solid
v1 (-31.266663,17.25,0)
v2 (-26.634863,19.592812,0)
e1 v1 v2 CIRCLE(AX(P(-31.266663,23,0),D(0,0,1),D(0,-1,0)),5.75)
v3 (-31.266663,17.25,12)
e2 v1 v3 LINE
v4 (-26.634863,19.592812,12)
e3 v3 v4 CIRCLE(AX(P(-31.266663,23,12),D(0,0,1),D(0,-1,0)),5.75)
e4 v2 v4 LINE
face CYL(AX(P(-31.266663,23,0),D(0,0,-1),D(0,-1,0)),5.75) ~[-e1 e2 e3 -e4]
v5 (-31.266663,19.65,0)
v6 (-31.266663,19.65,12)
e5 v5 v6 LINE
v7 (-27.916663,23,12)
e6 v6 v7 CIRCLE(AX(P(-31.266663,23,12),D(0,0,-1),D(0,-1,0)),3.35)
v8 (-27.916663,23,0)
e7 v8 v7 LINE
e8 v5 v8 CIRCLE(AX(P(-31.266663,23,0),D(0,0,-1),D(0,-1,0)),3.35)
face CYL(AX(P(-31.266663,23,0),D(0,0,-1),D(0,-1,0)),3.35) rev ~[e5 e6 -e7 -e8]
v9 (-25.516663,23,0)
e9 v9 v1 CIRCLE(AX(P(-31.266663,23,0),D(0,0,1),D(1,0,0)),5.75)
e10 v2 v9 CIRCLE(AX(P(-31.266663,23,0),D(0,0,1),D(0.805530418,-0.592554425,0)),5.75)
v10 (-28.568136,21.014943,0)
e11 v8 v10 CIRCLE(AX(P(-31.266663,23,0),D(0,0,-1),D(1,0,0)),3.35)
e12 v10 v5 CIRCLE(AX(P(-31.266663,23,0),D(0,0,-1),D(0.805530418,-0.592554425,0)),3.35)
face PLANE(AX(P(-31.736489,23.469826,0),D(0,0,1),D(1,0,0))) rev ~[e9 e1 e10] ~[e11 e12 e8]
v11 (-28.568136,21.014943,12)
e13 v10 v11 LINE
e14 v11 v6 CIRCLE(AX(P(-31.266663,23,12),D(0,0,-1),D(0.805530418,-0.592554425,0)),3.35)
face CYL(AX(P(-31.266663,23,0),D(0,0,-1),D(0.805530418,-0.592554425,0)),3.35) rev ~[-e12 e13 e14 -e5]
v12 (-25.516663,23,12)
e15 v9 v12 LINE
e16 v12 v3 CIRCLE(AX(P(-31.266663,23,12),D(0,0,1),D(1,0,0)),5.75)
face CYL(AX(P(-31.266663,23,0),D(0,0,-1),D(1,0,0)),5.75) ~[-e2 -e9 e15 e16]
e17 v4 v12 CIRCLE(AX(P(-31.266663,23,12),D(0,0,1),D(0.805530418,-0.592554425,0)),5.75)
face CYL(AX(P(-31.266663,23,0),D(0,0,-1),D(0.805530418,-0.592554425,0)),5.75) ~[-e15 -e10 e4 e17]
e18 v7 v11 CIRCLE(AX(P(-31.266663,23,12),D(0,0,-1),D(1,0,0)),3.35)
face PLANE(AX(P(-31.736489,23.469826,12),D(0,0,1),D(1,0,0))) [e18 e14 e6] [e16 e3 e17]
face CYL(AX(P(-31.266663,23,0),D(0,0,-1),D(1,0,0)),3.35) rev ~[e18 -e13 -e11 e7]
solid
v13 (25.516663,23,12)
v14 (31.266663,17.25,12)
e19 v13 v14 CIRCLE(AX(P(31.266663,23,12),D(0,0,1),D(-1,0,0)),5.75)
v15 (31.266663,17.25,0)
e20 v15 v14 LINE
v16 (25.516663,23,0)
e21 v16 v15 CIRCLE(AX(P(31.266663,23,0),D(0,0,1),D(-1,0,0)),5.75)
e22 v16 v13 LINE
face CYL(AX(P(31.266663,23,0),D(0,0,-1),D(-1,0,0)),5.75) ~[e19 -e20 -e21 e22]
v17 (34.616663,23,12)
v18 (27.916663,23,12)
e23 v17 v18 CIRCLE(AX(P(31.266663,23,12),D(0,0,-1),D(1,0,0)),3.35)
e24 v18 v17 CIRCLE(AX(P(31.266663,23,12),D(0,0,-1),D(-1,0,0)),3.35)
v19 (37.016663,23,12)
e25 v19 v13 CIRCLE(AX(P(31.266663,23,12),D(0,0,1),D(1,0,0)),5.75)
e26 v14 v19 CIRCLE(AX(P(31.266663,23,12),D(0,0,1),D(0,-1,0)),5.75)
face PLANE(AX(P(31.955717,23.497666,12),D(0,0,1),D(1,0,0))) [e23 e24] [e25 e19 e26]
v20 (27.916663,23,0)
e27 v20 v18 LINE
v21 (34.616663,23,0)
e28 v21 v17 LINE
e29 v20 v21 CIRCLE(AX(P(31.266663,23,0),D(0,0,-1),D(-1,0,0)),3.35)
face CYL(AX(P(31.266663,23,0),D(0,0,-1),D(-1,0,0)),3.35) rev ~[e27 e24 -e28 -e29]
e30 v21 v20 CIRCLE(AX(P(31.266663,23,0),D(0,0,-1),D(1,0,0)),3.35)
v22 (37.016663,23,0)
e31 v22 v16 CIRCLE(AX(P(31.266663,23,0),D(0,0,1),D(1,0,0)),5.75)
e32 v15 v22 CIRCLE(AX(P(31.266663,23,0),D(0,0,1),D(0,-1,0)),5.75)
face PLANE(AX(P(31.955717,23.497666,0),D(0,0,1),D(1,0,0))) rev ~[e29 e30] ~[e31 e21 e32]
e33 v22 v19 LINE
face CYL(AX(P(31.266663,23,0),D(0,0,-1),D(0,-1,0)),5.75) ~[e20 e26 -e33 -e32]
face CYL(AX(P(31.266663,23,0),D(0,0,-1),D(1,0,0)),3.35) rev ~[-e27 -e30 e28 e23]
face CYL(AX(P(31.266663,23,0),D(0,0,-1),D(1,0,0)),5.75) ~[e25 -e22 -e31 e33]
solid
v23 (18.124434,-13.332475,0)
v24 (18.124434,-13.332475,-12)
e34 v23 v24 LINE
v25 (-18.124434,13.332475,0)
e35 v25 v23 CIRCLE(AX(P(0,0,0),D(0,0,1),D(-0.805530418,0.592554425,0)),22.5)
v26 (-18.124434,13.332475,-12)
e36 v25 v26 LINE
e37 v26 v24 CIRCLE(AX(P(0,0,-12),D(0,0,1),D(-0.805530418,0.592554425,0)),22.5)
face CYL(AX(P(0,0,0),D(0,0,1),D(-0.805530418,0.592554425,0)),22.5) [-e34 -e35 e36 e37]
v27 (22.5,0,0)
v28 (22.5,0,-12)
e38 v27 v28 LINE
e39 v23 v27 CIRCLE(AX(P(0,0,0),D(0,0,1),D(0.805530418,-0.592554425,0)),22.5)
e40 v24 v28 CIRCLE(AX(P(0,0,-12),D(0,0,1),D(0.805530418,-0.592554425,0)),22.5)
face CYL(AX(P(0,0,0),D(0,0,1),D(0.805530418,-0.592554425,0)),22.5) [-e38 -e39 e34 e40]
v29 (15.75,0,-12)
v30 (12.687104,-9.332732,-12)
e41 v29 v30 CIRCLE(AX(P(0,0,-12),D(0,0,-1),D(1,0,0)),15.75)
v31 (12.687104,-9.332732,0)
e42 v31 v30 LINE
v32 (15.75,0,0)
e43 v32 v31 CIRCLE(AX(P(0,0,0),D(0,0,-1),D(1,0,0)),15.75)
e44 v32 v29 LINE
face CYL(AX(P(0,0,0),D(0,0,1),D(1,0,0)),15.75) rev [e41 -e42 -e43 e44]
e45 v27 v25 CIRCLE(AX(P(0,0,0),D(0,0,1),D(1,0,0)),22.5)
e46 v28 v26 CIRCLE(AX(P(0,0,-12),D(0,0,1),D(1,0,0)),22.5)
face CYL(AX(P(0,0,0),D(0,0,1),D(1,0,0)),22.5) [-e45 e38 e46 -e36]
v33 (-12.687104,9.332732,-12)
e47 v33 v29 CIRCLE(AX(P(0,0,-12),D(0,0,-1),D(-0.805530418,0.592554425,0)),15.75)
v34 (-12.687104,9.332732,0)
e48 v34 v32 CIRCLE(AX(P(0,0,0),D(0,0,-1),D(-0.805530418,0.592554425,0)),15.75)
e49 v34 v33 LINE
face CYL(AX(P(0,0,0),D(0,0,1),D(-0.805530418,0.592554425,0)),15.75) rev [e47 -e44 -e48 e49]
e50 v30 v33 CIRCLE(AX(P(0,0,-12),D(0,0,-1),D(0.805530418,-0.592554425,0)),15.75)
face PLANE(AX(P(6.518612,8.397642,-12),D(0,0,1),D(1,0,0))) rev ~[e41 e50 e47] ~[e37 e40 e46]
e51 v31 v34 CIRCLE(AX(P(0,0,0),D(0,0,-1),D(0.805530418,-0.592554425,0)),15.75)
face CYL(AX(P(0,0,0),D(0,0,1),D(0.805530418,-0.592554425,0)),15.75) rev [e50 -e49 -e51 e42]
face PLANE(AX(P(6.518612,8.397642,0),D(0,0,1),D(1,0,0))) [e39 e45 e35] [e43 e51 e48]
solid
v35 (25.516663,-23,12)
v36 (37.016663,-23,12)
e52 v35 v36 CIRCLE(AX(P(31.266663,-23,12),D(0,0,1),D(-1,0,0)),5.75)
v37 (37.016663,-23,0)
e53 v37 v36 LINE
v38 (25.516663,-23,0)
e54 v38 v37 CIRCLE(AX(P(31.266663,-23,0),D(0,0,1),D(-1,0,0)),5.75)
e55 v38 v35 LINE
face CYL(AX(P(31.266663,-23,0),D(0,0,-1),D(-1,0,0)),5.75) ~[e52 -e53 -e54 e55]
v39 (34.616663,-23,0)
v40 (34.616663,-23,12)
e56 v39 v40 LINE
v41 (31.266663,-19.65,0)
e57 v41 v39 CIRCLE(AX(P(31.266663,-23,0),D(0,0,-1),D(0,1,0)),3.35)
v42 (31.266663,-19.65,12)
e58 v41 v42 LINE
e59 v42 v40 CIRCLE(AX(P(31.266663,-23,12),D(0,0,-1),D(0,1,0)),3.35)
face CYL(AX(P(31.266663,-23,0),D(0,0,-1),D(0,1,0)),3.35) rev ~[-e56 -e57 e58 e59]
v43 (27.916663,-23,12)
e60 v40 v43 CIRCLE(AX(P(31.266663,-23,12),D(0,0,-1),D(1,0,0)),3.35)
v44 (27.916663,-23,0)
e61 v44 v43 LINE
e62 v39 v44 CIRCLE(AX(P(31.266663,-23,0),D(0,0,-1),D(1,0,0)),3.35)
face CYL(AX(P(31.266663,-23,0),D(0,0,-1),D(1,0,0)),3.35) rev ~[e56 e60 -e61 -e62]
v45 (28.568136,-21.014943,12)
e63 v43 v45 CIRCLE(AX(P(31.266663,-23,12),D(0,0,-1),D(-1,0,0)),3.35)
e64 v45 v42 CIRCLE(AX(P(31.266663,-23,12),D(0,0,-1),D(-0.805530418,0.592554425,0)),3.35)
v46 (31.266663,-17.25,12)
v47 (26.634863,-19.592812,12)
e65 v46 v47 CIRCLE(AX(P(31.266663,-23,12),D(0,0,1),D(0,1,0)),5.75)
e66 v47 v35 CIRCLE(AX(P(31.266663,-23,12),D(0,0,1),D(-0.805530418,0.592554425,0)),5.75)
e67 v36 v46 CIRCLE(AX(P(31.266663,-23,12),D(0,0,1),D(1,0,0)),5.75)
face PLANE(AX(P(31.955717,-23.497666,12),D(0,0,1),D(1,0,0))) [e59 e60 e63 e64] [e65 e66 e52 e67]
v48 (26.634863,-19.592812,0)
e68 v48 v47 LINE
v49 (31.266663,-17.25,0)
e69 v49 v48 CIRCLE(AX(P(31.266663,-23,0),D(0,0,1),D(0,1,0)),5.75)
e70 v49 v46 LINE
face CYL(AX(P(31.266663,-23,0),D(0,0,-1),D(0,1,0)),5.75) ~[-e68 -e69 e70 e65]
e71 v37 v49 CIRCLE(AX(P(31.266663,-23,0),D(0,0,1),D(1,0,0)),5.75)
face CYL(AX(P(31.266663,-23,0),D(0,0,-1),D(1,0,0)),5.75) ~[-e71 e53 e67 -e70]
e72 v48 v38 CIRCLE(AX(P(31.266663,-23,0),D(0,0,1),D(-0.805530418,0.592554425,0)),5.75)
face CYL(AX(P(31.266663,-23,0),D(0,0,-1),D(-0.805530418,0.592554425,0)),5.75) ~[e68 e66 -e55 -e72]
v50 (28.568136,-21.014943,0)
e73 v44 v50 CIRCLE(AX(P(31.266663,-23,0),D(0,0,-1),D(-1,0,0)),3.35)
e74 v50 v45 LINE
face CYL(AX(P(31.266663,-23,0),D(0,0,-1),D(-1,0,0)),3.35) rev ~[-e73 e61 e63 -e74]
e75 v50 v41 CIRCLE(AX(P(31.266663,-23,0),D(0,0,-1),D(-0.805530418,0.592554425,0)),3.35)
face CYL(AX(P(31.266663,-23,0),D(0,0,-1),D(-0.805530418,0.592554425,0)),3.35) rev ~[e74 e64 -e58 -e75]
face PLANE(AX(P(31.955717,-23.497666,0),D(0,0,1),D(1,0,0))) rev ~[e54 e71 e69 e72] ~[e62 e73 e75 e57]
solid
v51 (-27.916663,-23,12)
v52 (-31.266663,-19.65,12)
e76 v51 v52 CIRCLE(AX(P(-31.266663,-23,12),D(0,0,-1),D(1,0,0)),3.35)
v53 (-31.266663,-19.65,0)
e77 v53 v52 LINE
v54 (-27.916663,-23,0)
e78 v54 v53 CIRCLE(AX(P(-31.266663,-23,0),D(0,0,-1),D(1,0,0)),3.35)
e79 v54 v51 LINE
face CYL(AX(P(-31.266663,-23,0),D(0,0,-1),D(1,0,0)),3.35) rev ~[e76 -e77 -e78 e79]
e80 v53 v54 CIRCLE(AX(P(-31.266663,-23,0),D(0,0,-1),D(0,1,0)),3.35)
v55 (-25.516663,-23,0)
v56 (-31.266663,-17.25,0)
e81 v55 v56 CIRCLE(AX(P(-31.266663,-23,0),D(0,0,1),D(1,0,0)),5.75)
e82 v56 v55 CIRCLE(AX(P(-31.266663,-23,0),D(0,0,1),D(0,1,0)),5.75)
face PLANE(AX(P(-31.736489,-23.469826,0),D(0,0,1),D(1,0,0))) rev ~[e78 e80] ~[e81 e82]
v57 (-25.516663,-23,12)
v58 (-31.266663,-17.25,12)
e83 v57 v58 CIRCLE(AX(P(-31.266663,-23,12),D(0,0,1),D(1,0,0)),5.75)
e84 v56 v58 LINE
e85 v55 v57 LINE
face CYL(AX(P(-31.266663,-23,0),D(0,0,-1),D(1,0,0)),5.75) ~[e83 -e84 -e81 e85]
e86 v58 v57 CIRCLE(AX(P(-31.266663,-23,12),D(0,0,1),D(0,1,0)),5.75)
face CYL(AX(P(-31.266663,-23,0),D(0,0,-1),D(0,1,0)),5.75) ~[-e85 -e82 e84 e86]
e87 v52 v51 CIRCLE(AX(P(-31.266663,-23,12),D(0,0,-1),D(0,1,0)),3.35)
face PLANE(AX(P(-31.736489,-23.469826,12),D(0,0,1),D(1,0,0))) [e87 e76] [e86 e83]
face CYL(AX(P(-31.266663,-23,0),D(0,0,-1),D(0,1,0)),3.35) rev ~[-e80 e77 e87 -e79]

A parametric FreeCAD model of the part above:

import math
import FreeCAD as App
import Part
import Sketcher

V = App.Vector

doc = App.newDocument("Part")
body = doc.addObject("PartDesign::Body", "Body")

# Sketch on XY plane
sketch1 = doc.addObject("Sketcher::SketchObject", "Sketch")
body.addObject(sketch1)
sketch1.AttachmentSupport = (doc.XY_Plane, [""])
sketch1.MapMode = "FlatFace"
sketch1.addGeometry(Part.ArcOfCircle(Part.Circle(V(-31.3, -23, 0), V(0, 0, 1), 5.8), math.radians(90), math.radians(360)), False)
sketch1.addGeometry(Part.ArcOfCircle(Part.Circle(V(-31.3, -23, 0), V(0, 0, 1), 5.8), math.radians(0), math.radians(90)), False)
sketch1.addGeometry(Part.ArcOfCircle(Part.Circle(V(-31.3, -23, 0), V(0, 0, 1), 3.4), math.radians(90), math.radians(360)), False)
sketch1.addGeometry(Part.ArcOfCircle(Part.Circle(V(-31.3, -23, 0), V(0, 0, 1), 3.4), math.radians(0), math.radians(90)), False)
sketch1.addConstraint(Sketcher.Constraint("Tangent", 0, 1, 1, 2))
sketch1.addConstraint(Sketcher.Constraint("Coincident", 1, 1, 0, 2))
sketch1.addConstraint(Sketcher.Constraint("Tangent", 2, 1, 3, 2))
sketch1.addConstraint(Sketcher.Constraint("Coincident", 3, 1, 2, 2))
sketch1.addConstraint(Sketcher.Constraint("Coincident", 2, 3, 0, 3))
sketch1.addConstraint(Sketcher.Constraint("Horizontal", 3, 3, 1, 1))
sketch1.addConstraint(Sketcher.Constraint("Horizontal", 1, 1, 3, 1))
sketch1.addConstraint(Sketcher.Constraint("Vertical", 3, 3, 0, 1))
sketch1.addConstraint(Sketcher.Constraint("Vertical", 0, 1, 2, 1))
sketch1.addConstraint(Sketcher.Constraint("Radius", 0, 5.75))
sketch1.addConstraint(Sketcher.Constraint("Radius", 2, 3.35))
sketch1.addConstraint(Sketcher.Constraint("DistanceY", 0, 3, -1, 1, 23.0))
sketch1.addConstraint(Sketcher.Constraint("DistanceX", 0, 3, -1, 1, 31.266663))
pad1 = doc.addObject("PartDesign::Pad", "Pad")
body.addObject(pad1)
pad1.Profile = sketch1
pad1.Length = 12
body2 = doc.addObject("PartDesign::Body", "Body001")

# Sketch on XY plane
sketch2 = doc.addObject("Sketcher::SketchObject", "Sketch001")
body2.addObject(sketch2)
sketch2.AttachmentSupport = (doc.getObject("XY_Plane001"), [""])
sketch2.MapMode = "FlatFace"
sketch2.addGeometry(Part.ArcOfCircle(Part.Circle(V(31.3, 23, 0), V(0, 0, 1), 5.8), math.radians(0), math.radians(180)), False)
sketch2.addGeometry(Part.ArcOfCircle(Part.Circle(V(31.3, 23, 0), V(0, 0, 1), 5.8), math.radians(180), math.radians(270)), False)
sketch2.addGeometry(Part.ArcOfCircle(Part.Circle(V(31.3, 23, 0), V(0, 0, 1), 5.8), math.radians(-90), math.radians(0)), False)
sketch2.addGeometry(Part.ArcOfCircle(Part.Circle(V(31.3, 23, 0), V(0, 0, 1), 3.4), math.radians(0), math.radians(180)), False)
sketch2.addGeometry(Part.ArcOfCircle(Part.Circle(V(31.3, 23, 0), V(0, 0, 1), 3.4), math.radians(180), math.radians(360)), False)
sketch2.addConstraint(Sketcher.Constraint("Tangent", 0, 2, 1, 1))
sketch2.addConstraint(Sketcher.Constraint("Tangent", 1, 2, 2, 1))
sketch2.addConstraint(Sketcher.Constraint("Tangent", 2, 2, 0, 1))
sketch2.addConstraint(Sketcher.Constraint("Tangent", 3, 1, 4, 2))
sketch2.addConstraint(Sketcher.Constraint("Coincident", 4, 1, 3, 2))
sketch2.addConstraint(Sketcher.Constraint("Coincident", 3, 3, 0, 3))
sketch2.addConstraint(Sketcher.Constraint("Horizontal", 4, 3, 0, 2))
sketch2.addConstraint(Sketcher.Constraint("Horizontal", 0, 2, 2, 2))
sketch2.addConstraint(Sketcher.Constraint("Horizontal", 2, 2, 3, 1))
sketch2.addConstraint(Sketcher.Constraint("Horizontal", 3, 1, 4, 1))
sketch2.addConstraint(Sketcher.Constraint("Vertical", 4, 3, 1, 2))
sketch2.addConstraint(Sketcher.Constraint("Radius", 0, 5.75))
sketch2.addConstraint(Sketcher.Constraint("Radius", 3, 3.35))
sketch2.addConstraint(Sketcher.Constraint("DistanceY", -1, 1, 0, 3, 23.0))
sketch2.addConstraint(Sketcher.Constraint("DistanceX", -1, 1, 0, 3, 31.266663))
pad2 = doc.addObject("PartDesign::Pad", "Pad001")
body2.addObject(pad2)
pad2.Profile = sketch2
pad2.Length = 12
body3 = doc.addObject("PartDesign::Body", "Body002")

# Sketch on XY plane
sketch3 = doc.addObject("Sketcher::SketchObject", "Sketch002")
body3.addObject(sketch3)
sketch3.AttachmentSupport = (doc.getObject("XY_Plane002"), [""])
sketch3.MapMode = "FlatFace"
sketch3.addGeometry(Part.ArcOfCircle(Part.Circle(V(-31.3, 23, 0), V(0, 0, 1), 5.8), math.radians(0), math.radians(270)), False)
sketch3.addGeometry(Part.ArcOfCircle(Part.Circle(V(-31.3, 23, 0), V(0, 0, 1), 5.8), math.radians(-90), math.radians(-36)), False)
sketch3.addGeometry(Part.ArcOfCircle(Part.Circle(V(-31.3, 23, 0), V(0, 0, 1), 5.8), math.radians(-36), math.radians(0)), False)
sketch3.addGeometry(Part.ArcOfCircle(Part.Circle(V(-31.3, 23, 0), V(0, 0, 1), 3.4), math.radians(-90), math.radians(-36)), False)
sketch3.addGeometry(Part.ArcOfCircle(Part.Circle(V(-31.3, 23, 0), V(0, 0, 1), 3.4), math.radians(0), math.radians(270)), False)
sketch3.addGeometry(Part.ArcOfCircle(Part.Circle(V(-31.3, 23, 0), V(0, 0, 1), 3.4), math.radians(-36), math.radians(0)), False)
sketch3.addConstraint(Sketcher.Constraint("Tangent", 0, 2, 1, 1))
sketch3.addConstraint(Sketcher.Constraint("Tangent", 1, 2, 2, 1))
sketch3.addConstraint(Sketcher.Constraint("Tangent", 2, 2, 0, 1))
sketch3.addConstraint(Sketcher.Constraint("Tangent", 3, 1, 4, 2))
sketch3.addConstraint(Sketcher.Constraint("Tangent", 4, 1, 5, 2))
sketch3.addConstraint(Sketcher.Constraint("Tangent", 5, 1, 3, 2))
sketch3.addConstraint(Sketcher.Constraint("Coincident", 3, 3, 0, 3))
sketch3.addConstraint(Sketcher.Constraint("Horizontal", 5, 3, 2, 2))
sketch3.addConstraint(Sketcher.Constraint("Horizontal", 2, 2, 4, 1))
sketch3.addConstraint(Sketcher.Constraint("Vertical", 5, 3, 0, 2))
sketch3.addConstraint(Sketcher.Constraint("Vertical", 0, 2, 3, 1))
sketch3.addConstraint(Sketcher.Constraint("Radius", 0, 5.75))
sketch3.addConstraint(Sketcher.Constraint("Radius", 3, 3.35))
sketch3.addConstraint(Sketcher.Constraint("DistanceY", -1, 1, 0, 3, 23.0))
sketch3.addConstraint(Sketcher.Constraint("DistanceX", 0, 2, 1, 2, 4.6318))
sketch3.addConstraint(Sketcher.Constraint("DistanceY", 1, 2, 5, 1, 1.422131))
sketch3.addConstraint(Sketcher.Constraint("DistanceX", 0, 3, -1, 1, 31.266663))
pad3 = doc.addObject("PartDesign::Pad", "Pad002")
body3.addObject(pad3)
pad3.Profile = sketch3
pad3.Length = 12
body4 = doc.addObject("PartDesign::Body", "Body003")

# Sketch on XY plane
sketch4 = doc.addObject("Sketcher::SketchObject", "Sketch003")
body4.addObject(sketch4)
sketch4.AttachmentSupport = (doc.getObject("XY_Plane003"), [""])
sketch4.MapMode = "FlatFace"
sketch4.addGeometry(Part.ArcOfCircle(Part.Circle(V(31.3, -23, 0), V(0, 0, 1), 5.8), math.radians(0), math.radians(90)), False)
sketch4.addGeometry(Part.ArcOfCircle(Part.Circle(V(31.3, -23, 0), V(0, 0, 1), 5.8), math.radians(90), math.radians(144)), False)
sketch4.addGeometry(Part.ArcOfCircle(Part.Circle(V(31.3, -23, 0), V(0, 0, 1), 5.8), math.radians(144), math.radians(180)), False)
sketch4.addGeometry(Part.ArcOfCircle(Part.Circle(V(31.3, -23, 0), V(0, 0, 1), 5.8), math.radians(180), math.radians(360)), False)
sketch4.addGeometry(Part.ArcOfCircle(Part.Circle(V(31.3, -23, 0), V(0, 0, 1), 3.4), math.radians(90), math.radians(144)), False)
sketch4.addGeometry(Part.ArcOfCircle(Part.Circle(V(31.3, -23, 0), V(0, 0, 1), 3.4), math.radians(0), math.radians(90)), False)
sketch4.addGeometry(Part.ArcOfCircle(Part.Circle(V(31.3, -23, 0), V(0, 0, 1), 3.4), math.radians(180), math.radians(360)), False)
sketch4.addGeometry(Part.ArcOfCircle(Part.Circle(V(31.3, -23, 0), V(0, 0, 1), 3.4), math.radians(144), math.radians(180)), False)
sketch4.addConstraint(Sketcher.Constraint("Tangent", 0, 2, 1, 1))
sketch4.addConstraint(Sketcher.Constraint("Tangent", 1, 2, 2, 1))
sketch4.addConstraint(Sketcher.Constraint("Tangent", 2, 2, 3, 1))
sketch4.addConstraint(Sketcher.Constraint("Tangent", 3, 2, 0, 1))
sketch4.addConstraint(Sketcher.Constraint("Tangent", 4, 1, 5, 2))
sketch4.addConstraint(Sketcher.Constraint("Tangent", 5, 1, 6, 2))
sketch4.addConstraint(Sketcher.Constraint("Tangent", 6, 1, 7, 2))
sketch4.addConstraint(Sketcher.Constraint("Tangent", 7, 1, 4, 2))
sketch4.addConstraint(Sketcher.Constraint("Coincident", 4, 3, 0, 3))
sketch4.addConstraint(Sketcher.Constraint("Equal", 0, 1))
sketch4.addConstraint(Sketcher.Constraint("Equal", 4, 5))
sketch4.addConstraint(Sketcher.Constraint("Horizontal", 7, 3, 2, 2))
sketch4.addConstraint(Sketcher.Constraint("Horizontal", 2, 2, 3, 2))
sketch4.addConstraint(Sketcher.Constraint("Horizontal", 3, 2, 5, 1))
sketch4.addConstraint(Sketcher.Constraint("Horizontal", 5, 1, 6, 1))
sketch4.addConstraint(Sketcher.Constraint("Vertical", 7, 3, 0, 2))
sketch4.addConstraint(Sketcher.Constraint("Vertical", 0, 2, 4, 1))
sketch4.addConstraint(Sketcher.Constraint("Radius", 0, 5.75))
sketch4.addConstraint(Sketcher.Constraint("Radius", 4, 3.35))
sketch4.addConstraint(Sketcher.Constraint("DistanceY", 0, 3, -1, 1, 23.0))
sketch4.addConstraint(Sketcher.Constraint("DistanceX", 1, 2, 0, 2, 4.6318))
sketch4.addConstraint(Sketcher.Constraint("DistanceY", 7, 1, 1, 2, 1.422131))
sketch4.addConstraint(Sketcher.Constraint("DistanceX", -1, 1, 0, 3, 31.266663))
pad4 = doc.addObject("PartDesign::Pad", "Pad003")
body4.addObject(pad4)
pad4.Profile = sketch4
pad4.Length = 12
body5 = doc.addObject("PartDesign::Body", "Body004")

# Sketch on XY plane
sketch5 = doc.addObject("Sketcher::SketchObject", "Sketch004")
body5.addObject(sketch5)
sketch5.AttachmentSupport = (doc.getObject("XY_Plane004"), [""])
sketch5.MapMode = "FlatFace"
sketch5.addGeometry(Part.ArcOfCircle(Part.Circle(V(0, 0, 0), V(0, 0, 1), 22), math.radians(0), math.radians(144)), False)
sketch5.addGeometry(Part.ArcOfCircle(Part.Circle(V(0, 0, 0), V(0, 0, 1), 22), math.radians(144), math.radians(324)), False)
sketch5.addGeometry(Part.ArcOfCircle(Part.Circle(V(0, 0, 0), V(0, 0, 1), 22), math.radians(-36), math.radians(0)), False)
sketch5.addGeometry(Part.ArcOfCircle(Part.Circle(V(0, 0, 0), V(0, 0, 1), 16), math.radians(0), math.radians(144)), False)
sketch5.addGeometry(Part.ArcOfCircle(Part.Circle(V(0, 0, 0), V(0, 0, 1), 16), math.radians(-36), math.radians(0)), False)
sketch5.addGeometry(Part.ArcOfCircle(Part.Circle(V(0, 0, 0), V(0, 0, 1), 16), math.radians(144), math.radians(324)), False)
sketch5.addConstraint(Sketcher.Constraint("Tangent", 0, 2, 1, 1))
sketch5.addConstraint(Sketcher.Constraint("Tangent", 1, 2, 2, 1))
sketch5.addConstraint(Sketcher.Constraint("Tangent", 2, 2, 0, 1))
sketch5.addConstraint(Sketcher.Constraint("Tangent", 3, 1, 4, 2))
sketch5.addConstraint(Sketcher.Constraint("Tangent", 4, 1, 5, 2))
sketch5.addConstraint(Sketcher.Constraint("Tangent", 5, 1, 3, 2))
sketch5.addConstraint(Sketcher.Constraint("Coincident", 0, 3, -1, 1))
sketch5.addConstraint(Sketcher.Constraint("Coincident", 3, 3, -1, 1))
sketch5.addConstraint(Sketcher.Constraint("PointOnObject", 2, 2, -1))
sketch5.addConstraint(Sketcher.Constraint("PointOnObject", 3, 1, -1))
sketch5.addConstraint(Sketcher.Constraint("Radius", 0, 22.5))
sketch5.addConstraint(Sketcher.Constraint("Radius", 3, 15.75))
sketch5.addConstraint(Sketcher.Constraint("DistanceX", 4, 1, 1, 2, 5.43733))
sketch5.addConstraint(Sketcher.Constraint("DistanceX", 0, 2, 5, 1, 5.43733))
sketch5.addConstraint(Sketcher.Constraint("DistanceX", 0, 2, -1, 1, 18.124434))
sketch5.addConstraint(Sketcher.Constraint("DistanceX", -1, 1, 1, 2, 18.124434))
pad5 = doc.addObject("PartDesign::Pad", "Pad004")
body5.addObject(pad5)
pad5.Profile = sketch5
pad5.Length = 12
pad5.Reversed = True

doc.recompute()
